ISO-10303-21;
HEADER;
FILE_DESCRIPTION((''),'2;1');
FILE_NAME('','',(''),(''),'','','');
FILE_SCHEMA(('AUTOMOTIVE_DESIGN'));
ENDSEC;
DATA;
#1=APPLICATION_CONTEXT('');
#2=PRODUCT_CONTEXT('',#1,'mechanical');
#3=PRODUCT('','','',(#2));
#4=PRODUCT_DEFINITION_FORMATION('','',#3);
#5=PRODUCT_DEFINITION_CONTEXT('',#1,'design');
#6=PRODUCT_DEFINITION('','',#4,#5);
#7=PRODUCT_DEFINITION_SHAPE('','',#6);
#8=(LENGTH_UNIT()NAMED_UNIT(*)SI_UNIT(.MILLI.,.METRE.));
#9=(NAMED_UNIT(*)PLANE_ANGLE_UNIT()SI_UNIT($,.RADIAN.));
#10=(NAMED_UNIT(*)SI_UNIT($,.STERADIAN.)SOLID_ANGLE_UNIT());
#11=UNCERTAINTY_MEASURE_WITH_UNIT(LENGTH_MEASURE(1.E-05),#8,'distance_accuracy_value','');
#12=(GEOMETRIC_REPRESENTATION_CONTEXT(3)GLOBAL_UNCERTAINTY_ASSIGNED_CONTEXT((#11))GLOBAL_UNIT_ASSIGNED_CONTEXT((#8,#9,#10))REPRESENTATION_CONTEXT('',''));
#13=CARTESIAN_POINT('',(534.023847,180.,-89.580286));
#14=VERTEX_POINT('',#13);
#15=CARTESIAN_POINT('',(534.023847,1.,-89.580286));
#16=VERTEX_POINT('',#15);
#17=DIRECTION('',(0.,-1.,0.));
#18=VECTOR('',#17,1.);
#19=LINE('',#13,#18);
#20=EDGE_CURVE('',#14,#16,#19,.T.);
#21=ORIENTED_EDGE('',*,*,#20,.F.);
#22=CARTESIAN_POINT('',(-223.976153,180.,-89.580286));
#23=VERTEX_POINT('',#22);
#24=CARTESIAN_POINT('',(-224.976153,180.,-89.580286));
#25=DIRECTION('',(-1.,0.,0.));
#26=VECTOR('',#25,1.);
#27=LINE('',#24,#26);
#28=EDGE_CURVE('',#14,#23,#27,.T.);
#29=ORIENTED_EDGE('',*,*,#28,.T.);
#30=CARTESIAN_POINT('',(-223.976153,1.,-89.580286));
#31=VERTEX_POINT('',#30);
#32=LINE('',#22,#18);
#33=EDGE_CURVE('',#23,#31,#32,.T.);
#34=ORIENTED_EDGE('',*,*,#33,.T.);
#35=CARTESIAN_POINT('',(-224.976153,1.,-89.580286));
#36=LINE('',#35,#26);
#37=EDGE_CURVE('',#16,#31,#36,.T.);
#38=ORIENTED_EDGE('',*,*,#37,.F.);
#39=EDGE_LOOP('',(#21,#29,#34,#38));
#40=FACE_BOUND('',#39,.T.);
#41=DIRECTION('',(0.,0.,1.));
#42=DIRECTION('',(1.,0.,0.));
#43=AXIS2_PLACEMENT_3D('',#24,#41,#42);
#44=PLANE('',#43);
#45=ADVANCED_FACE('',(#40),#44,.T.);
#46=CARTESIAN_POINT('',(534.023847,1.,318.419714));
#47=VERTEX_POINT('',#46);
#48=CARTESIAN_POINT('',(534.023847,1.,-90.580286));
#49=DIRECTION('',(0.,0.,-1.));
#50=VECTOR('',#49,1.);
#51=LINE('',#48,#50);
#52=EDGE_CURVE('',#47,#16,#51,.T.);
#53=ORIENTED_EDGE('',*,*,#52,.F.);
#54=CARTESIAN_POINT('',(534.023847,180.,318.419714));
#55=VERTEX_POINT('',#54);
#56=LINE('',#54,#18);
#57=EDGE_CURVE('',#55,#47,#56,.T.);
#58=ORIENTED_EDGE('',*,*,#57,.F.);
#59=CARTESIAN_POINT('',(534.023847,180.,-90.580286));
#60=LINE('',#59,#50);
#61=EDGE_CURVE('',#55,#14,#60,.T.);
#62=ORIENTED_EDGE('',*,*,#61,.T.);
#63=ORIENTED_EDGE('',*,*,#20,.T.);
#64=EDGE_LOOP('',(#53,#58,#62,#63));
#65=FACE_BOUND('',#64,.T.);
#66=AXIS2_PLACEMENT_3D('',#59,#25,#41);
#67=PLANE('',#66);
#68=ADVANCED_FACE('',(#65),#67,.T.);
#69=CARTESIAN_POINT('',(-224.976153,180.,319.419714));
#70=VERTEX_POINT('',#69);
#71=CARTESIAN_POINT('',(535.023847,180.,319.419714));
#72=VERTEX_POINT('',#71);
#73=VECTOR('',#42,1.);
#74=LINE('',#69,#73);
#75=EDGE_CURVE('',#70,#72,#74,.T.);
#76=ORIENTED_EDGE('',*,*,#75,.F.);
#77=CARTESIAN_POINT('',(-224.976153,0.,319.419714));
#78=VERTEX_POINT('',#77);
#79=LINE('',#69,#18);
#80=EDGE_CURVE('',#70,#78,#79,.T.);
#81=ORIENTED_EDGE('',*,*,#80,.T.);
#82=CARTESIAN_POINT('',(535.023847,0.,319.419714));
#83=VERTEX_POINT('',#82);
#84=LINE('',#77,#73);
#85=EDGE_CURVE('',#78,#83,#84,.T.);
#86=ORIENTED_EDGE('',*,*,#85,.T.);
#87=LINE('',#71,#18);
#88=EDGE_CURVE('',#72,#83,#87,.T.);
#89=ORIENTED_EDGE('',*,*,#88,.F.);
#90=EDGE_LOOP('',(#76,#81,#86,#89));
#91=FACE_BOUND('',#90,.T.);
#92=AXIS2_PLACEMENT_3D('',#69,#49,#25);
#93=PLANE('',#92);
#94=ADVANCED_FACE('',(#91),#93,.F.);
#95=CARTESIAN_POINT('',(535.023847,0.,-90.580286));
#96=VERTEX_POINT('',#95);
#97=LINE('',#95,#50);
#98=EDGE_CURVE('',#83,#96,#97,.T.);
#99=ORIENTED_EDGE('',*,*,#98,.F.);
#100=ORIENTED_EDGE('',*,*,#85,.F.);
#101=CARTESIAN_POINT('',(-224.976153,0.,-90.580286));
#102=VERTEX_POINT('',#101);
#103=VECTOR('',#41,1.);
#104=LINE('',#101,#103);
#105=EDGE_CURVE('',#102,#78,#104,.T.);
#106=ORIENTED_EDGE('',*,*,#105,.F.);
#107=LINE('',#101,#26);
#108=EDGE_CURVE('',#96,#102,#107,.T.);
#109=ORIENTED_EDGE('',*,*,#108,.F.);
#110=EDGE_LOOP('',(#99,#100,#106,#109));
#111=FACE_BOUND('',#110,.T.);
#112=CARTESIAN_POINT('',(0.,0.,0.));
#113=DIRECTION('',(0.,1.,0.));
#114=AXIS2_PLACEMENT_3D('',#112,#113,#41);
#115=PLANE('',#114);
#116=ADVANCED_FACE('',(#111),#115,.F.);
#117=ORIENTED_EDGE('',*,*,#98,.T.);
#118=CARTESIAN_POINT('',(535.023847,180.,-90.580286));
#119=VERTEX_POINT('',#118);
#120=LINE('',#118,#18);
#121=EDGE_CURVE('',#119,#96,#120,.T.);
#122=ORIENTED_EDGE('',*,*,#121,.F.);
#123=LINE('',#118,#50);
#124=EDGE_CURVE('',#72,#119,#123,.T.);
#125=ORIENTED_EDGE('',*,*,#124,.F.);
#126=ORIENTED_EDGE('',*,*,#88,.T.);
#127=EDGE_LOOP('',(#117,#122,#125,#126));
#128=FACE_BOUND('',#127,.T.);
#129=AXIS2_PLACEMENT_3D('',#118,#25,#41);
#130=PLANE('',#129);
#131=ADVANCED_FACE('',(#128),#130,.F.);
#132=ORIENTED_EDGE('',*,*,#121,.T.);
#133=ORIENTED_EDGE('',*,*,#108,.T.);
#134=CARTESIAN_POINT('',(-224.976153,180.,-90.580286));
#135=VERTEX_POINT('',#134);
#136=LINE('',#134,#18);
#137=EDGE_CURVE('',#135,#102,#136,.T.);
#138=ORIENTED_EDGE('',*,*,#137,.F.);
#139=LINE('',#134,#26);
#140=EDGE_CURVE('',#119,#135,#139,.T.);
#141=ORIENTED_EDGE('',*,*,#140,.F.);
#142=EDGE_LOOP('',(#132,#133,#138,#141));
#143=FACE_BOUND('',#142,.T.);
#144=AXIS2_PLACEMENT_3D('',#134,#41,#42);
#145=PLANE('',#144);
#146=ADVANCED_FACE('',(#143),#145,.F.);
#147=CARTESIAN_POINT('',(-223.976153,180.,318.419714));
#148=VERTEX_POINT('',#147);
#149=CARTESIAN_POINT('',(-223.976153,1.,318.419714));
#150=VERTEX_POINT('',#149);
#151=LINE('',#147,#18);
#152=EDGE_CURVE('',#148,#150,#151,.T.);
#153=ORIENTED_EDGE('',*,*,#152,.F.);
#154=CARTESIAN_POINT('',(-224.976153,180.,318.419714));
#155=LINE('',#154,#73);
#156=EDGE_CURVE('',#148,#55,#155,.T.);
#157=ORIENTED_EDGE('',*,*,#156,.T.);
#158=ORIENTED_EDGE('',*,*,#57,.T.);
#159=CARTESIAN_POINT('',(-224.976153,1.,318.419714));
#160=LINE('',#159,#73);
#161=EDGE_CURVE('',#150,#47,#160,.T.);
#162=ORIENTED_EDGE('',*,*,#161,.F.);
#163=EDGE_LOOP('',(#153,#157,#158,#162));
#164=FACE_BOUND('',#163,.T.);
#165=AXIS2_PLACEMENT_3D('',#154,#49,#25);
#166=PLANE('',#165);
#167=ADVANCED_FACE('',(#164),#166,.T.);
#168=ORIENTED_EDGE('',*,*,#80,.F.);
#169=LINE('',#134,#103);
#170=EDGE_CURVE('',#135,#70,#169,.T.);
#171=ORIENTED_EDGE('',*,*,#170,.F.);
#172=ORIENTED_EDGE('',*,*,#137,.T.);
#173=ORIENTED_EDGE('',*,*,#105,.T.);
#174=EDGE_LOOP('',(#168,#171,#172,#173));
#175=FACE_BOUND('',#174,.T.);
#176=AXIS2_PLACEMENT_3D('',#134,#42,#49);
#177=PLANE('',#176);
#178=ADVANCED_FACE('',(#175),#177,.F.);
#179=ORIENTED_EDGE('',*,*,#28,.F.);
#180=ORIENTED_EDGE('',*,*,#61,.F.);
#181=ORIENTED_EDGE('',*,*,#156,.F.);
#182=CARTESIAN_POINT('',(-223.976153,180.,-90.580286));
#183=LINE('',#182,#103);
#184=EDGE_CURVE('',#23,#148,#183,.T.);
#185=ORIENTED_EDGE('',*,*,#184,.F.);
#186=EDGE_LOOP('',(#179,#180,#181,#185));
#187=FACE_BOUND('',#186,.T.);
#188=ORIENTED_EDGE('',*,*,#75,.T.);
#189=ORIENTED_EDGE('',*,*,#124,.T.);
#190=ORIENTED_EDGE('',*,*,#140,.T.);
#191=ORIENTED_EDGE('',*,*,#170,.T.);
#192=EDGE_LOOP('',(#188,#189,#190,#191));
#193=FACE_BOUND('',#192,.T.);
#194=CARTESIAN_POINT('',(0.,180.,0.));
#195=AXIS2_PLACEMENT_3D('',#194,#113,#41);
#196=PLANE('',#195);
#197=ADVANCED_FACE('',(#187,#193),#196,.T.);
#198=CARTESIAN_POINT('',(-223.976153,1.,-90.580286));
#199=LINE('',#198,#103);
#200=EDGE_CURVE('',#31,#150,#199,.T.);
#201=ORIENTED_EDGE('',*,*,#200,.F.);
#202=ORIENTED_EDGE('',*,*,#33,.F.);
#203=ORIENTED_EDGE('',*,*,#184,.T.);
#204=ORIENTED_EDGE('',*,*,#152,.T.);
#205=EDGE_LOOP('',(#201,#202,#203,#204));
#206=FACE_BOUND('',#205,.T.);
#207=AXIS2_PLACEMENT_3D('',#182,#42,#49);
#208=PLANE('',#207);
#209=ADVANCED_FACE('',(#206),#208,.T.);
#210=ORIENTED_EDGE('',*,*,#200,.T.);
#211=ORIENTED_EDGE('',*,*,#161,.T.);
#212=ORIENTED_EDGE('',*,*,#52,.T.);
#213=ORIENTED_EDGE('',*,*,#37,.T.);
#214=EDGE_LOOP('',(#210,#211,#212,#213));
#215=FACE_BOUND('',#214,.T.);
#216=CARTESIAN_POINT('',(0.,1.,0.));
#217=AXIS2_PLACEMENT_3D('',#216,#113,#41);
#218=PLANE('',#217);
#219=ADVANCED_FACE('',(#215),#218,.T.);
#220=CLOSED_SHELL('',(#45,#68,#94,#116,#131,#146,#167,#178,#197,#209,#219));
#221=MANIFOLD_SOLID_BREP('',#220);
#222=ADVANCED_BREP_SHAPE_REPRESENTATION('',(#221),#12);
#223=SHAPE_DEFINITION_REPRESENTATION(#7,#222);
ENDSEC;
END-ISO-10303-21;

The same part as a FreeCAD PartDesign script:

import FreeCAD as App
import Part
import Sketcher
from FreeCAD import Vector


def faces_at(feature, points):
    """Names of the faces that lie closest to the given points."""
    faces = feature.Shape.Faces
    near = lambda p: min(range(len(faces)), key=lambda i: faces[i].distToShape(Part.Vertex(*p))[0])
    return sorted({f"Face{near(p) + 1}" for p in points})

doc = App.newDocument("Part")
body = doc.addObject("PartDesign::Body", "Body")

sketch1 = body.newObject("Sketcher::SketchObject", "Sketch")
sketch1.AttachmentSupport = (doc.getObject("XZ_Plane"), [""])
sketch1.MapMode = "FlatFace"
sketch1.addGeometry(Part.LineSegment(Vector(-225, -91, 0), Vector(-225, 319, 0)), False)
sketch1.addGeometry(Part.LineSegment(Vector(-225, 319, 0), Vector(535, 319, 0)), False)
sketch1.addGeometry(Part.LineSegment(Vector(535, 319, 0), Vector(535, -91, 0)), False)
sketch1.addGeometry(Part.LineSegment(Vector(535, -91, 0), Vector(-225, -91, 0)), False)
sketch1.addConstraint(Sketcher.Constraint("Coincident", 0, 2, 1, 1))
sketch1.addConstraint(Sketcher.Constraint("Coincident", 1, 2, 2, 1))
sketch1.addConstraint(Sketcher.Constraint("Coincident", 2, 2, 3, 1))
sketch1.addConstraint(Sketcher.Constraint("Coincident", 3, 2, 0, 1))
sketch1.addConstraint(Sketcher.Constraint("Vertical", 0))
sketch1.addConstraint(Sketcher.Constraint("Horizontal", 1))
sketch1.addConstraint(Sketcher.Constraint("Vertical", 2))
sketch1.addConstraint(Sketcher.Constraint("Horizontal", 3))
sketch1.addConstraint(Sketcher.Constraint("DistanceX", 1, 1, 1, 2, 760.0))
sketch1.addConstraint(Sketcher.Constraint("DistanceY", 0, 1, 0, 2, 410.0))
sketch1.addConstraint(Sketcher.Constraint("DistanceX", 0, 2, -1, 1, 224.976153))
sketch1.addConstraint(Sketcher.Constraint("DistanceY", -1, 1, 0, 2, 319.419714))
pad1 = body.newObject("PartDesign::Pad", "Pad")
pad1.Profile = sketch1
pad1.Length = 180
pad1.Reversed = True
doc.recompute()

thickness = body.newObject("PartDesign::Thickness", "Thickness")
thickness.Base = (pad1, faces_at(pad1, [(155.024, 180, 114.42)]))
thickness.Value = 1
thickness.Reversed = True
thickness.Join = "Intersection"

doc.recompute()
